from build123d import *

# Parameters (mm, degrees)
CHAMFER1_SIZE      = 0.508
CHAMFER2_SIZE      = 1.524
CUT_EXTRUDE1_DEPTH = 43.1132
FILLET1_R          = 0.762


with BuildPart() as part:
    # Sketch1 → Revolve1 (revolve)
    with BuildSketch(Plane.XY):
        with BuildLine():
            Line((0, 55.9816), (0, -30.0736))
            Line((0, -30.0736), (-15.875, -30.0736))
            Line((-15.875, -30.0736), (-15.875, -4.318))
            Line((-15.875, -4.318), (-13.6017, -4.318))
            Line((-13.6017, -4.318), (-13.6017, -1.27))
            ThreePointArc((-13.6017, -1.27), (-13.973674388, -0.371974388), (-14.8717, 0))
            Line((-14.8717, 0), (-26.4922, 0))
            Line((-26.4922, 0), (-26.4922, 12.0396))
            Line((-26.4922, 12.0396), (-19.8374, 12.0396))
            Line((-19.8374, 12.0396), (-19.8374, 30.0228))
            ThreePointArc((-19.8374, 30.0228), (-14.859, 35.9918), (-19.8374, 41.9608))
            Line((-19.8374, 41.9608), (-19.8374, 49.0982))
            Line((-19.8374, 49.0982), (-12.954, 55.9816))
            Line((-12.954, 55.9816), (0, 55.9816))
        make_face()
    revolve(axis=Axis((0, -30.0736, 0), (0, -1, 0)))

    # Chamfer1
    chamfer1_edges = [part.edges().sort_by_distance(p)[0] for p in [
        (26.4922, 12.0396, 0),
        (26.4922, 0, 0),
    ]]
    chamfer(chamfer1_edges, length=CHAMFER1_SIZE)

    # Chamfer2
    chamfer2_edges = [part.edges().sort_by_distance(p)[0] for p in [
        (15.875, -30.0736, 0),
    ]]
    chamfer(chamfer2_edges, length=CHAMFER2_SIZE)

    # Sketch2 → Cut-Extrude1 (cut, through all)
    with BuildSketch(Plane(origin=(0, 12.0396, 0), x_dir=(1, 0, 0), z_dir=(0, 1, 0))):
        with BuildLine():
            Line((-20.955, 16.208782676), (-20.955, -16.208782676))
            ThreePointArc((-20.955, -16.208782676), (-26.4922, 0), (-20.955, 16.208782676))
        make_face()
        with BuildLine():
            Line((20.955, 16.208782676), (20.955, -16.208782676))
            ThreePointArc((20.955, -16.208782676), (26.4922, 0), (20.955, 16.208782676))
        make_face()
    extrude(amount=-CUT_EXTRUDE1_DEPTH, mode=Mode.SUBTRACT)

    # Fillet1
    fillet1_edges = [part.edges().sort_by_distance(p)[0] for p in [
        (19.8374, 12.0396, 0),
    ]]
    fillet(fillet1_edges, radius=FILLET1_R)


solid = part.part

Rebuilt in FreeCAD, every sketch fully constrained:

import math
import FreeCAD as App
import Part
import Sketcher
from FreeCAD import Vector
Q = App.Units.Quantity


def edges_at(feature, points):
    """Names of the edges that pass closest to the given points."""
    edges = feature.Shape.Edges
    near = lambda p: min(range(len(edges)), key=lambda i: edges[i].distToShape(Part.Vertex(*p))[0])
    return sorted({f"Edge{near(p) + 1}" for p in points})

doc = App.newDocument("Part")
params = doc.addObject("Spreadsheet::Sheet", "Params")
for row, (alias, value) in enumerate([
    ("sketch1_radius", "0.05 in"),
    ("sketch1_width", "0.51 in"),
    ("sketch1_height", "0.12 in"),
    ("sketch1_width2", "0.262 in"),
    ("sketch1_width3", "0.625 in"),
    ("revolution_angle", "360 deg"),
    ("chamfer_size", "0.02 in"),
    ("chamfer2_size", "0.06 in"),
    ("sketch2_radius", "1.043 in"),
    ("fillet_radius", "0.03 in"),
], start=1):
    params.set(f"A{row}", alias)
    params.set(f"B{row}", "=" + value)
    params.setAlias(f"B{row}", alias)

body = doc.addObject("PartDesign::Body", "Body")

# Sketch on XY plane
sketch1 = body.newObject("Sketcher::SketchObject", "Sketch")
sketch1.AttachmentSupport = (doc.getObject("XY_Plane"), [""])
sketch1.MapMode = "FlatFace"
sketch1.addGeometry([
    Part.LineSegment(Vector(0, -30.1, 0), Vector(0, 56, 0)),  # 0
    Part.LineSegment(Vector(0, 56, 0), Vector(-13, 56, 0)),  # 1
    Part.LineSegment(Vector(-13, 56, 0), Vector(-19.8, 49.1, 0)),  # 2
    Part.LineSegment(Vector(-19.8, 49.1, 0), Vector(-19.8, 42, 0)),  # 3
    Part.ArcOfCircle(Part.Circle(Vector(-20.9, 36, 0), Vector(0, 0, 1), 6.1), math.radians(-80), math.radians(80)),  # 4
    Part.LineSegment(Vector(-19.8, 30, 0), Vector(-19.8, 12, 0)),  # 5
    Part.LineSegment(Vector(-19.8, 12, 0), Vector(-26.5, 12, 0)),  # 6
    Part.LineSegment(Vector(-26.5, 12, 0), Vector(-26.5, 0, 0)),  # 7
    Part.LineSegment(Vector(-26.5, 0, 0), Vector(-14.9, 0, 0)),  # 8
    Part.ArcOfCircle(Part.Circle(Vector(-14.9, -1.3, 0), Vector(0, 0, 1), 1.3), math.radians(0), math.radians(90)),  # 9
    Part.LineSegment(Vector(-13.6, -1.3, 0), Vector(-13.6, -4.3, 0)),  # 10
    Part.LineSegment(Vector(-13.6, -4.3, 0), Vector(-15.9, -4.3, 0)),  # 11
    Part.LineSegment(Vector(-15.9, -4.3, 0), Vector(-15.9, -30.1, 0)),  # 12
    Part.LineSegment(Vector(-15.9, -30.1, 0), Vector(0, -30.1, 0)),  # 13
], False)
sketch1.addConstraint([
    Sketcher.Constraint("Coincident", 0, 2, 1, 1),
    Sketcher.Constraint("Coincident", 1, 2, 2, 1),
    Sketcher.Constraint("Coincident", 2, 2, 3, 1),
    Sketcher.Constraint("Coincident", 3, 2, 4, 2),
    Sketcher.Constraint("Coincident", 4, 1, 5, 1),
    Sketcher.Constraint("Coincident", 5, 2, 6, 1),
    Sketcher.Constraint("Coincident", 6, 2, 7, 1),
    Sketcher.Constraint("Coincident", 7, 2, 8, 1),
    Sketcher.Constraint("Tangent", 8, 2, 9, 2),
    Sketcher.Constraint("Tangent", 9, 1, 10, 1),
    Sketcher.Constraint("Coincident", 10, 2, 11, 1),
    Sketcher.Constraint("Coincident", 11, 2, 12, 1),
    Sketcher.Constraint("Coincident", 12, 2, 13, 1),
    Sketcher.Constraint("Coincident", 13, 2, 0, 1),
    Sketcher.Constraint("Vertical", 0),
    Sketcher.Constraint("Horizontal", 1),
    Sketcher.Constraint("Vertical", 3),
    Sketcher.Constraint("Vertical", 5),
    Sketcher.Constraint("Horizontal", 6),
    Sketcher.Constraint("Vertical", 7),
    Sketcher.Constraint("Horizontal", 8),
    Sketcher.Constraint("Vertical", 10),
    Sketcher.Constraint("Horizontal", 11),
    Sketcher.Constraint("Vertical", 12),
    Sketcher.Constraint("Horizontal", 13),
    Sketcher.Constraint("PointOnObject", 0, 2, -2),
    Sketcher.Constraint("PointOnObject", 7, 2, -1),
    Sketcher.Constraint("Vertical", 3, 2, 4, 1),
    Sketcher.Constraint("Radius", 9, Q("0.05 in")),
    Sketcher.Constraint("Angle", 2, Q("-135 deg")),
    Sketcher.Constraint("DistanceX", 1, 2, 1, 1, Q("0.51 in")),
    Sketcher.Constraint("DistanceY", 10, 2, 10, 1, Q("0.12 in")),
    Sketcher.Constraint("DistanceX", 6, 2, 6, 1, Q("0.262 in")),
    Sketcher.Constraint("DistanceX", 13, 1, 13, 2, Q("0.625 in")),
    Sketcher.Constraint("DistanceY", 0, 1, 0, 2, Q("3.388 in")),
    Sketcher.Constraint("DistanceY", 3, 2, 3, 1, Q("0.281 in")),
    Sketcher.Constraint("DistanceY", 5, 2, 5, 1, Q("0.708 in")),
    Sketcher.Constraint("DistanceY", 7, 2, 7, 1, Q("0.474 in")),
    Sketcher.Constraint("DistanceY", 12, 2, 12, 1, Q("1.014 in")),
    Sketcher.Constraint("DistanceY", 4, 1, 3, 2, Q("0.47 in")),
    Sketcher.Constraint("DistanceX", 8, 1, 8, 2, Q("0.4575 in")),
    Sketcher.Constraint("Radius", 4, Q("6.067555 mm")),
])
sketch1.setExpression("Constraints[28]", "Params.sketch1_radius")
sketch1.setExpression("Constraints[30]", "Params.sketch1_width")
sketch1.setExpression("Constraints[31]", "Params.sketch1_height")
sketch1.setExpression("Constraints[32]", "Params.sketch1_width2")
sketch1.setExpression("Constraints[33]", "Params.sketch1_width3")
revolution = body.newObject("PartDesign::Revolution", "Revolution")
revolution.Profile = sketch1
revolution.ReferenceAxis = (sketch1, ["V_Axis"])
revolution.setExpression("Angle", "Params.revolution_angle")
doc.recompute()

chamfer = body.newObject("PartDesign::Chamfer", "Chamfer")
chamfer.Base = (revolution, edges_at(revolution, [(26.492, 12.04, 0), (26.492, 0, 0)]))
chamfer.setExpression("Size", "Params.chamfer_size")
doc.recompute()

chamfer2 = body.newObject("PartDesign::Chamfer", "Chamfer001")
chamfer2.Base = (chamfer, edges_at(chamfer, [(15.875, -30.074, 0)]))
chamfer2.setExpression("Size", "Params.chamfer2_size")

# Sketch on XZ plane
sketch2 = body.newObject("Sketcher::SketchObject", "Sketch001")
sketch2.AttachmentSupport = (doc.getObject("XZ_Plane"), [""])
sketch2.MapMode = "FlatFace"
sketch2.AttachmentOffset = App.Placement(Vector(0, 0, -0.474 * 25.4), App.Rotation())
sketch2.addGeometry([
    Part.LineSegment(Vector(-21, 16, 0), Vector(-21, -16, 0)),
    Part.ArcOfCircle(Part.Circle(Vector(0, 0, 0), Vector(0, 0, 1), 26), math.radians(142), math.radians(218)),
    Part.LineSegment(Vector(21, -16, 0), Vector(21, 16, 0)),
    Part.ArcOfCircle(Part.Circle(Vector(0, 0, 0), Vector(0, 0, 1), 26), math.radians(-38), math.radians(38)),
], False)
sketch2.addConstraint([
    Sketcher.Constraint("Coincident", 0, 1, 1, 1),
    Sketcher.Constraint("Coincident", 1, 2, 0, 2),
    Sketcher.Constraint("Coincident", 2, 1, 3, 1),
    Sketcher.Constraint("Coincident", 3, 2, 2, 2),
    Sketcher.Constraint("Vertical", 0),
    Sketcher.Constraint("Vertical", 2),
    Sketcher.Constraint("Coincident", 1, 3, -1, 1),
    Sketcher.Constraint("Coincident", 3, 3, -1, 1),
    Sketcher.Constraint("Equal", 1, 3),
    Sketcher.Constraint("Horizontal", 1, 2, 2, 1),
    Sketcher.Constraint("Radius", 1, Q("1.043 in")),
    Sketcher.Constraint("DistanceX", 1, 2, 2, 1, Q("1.65 in")),
])
sketch2.setExpression("Constraints[10]", "Params.sketch2_radius")
pocket1 = body.newObject("PartDesign::Pocket", "Pocket")
pocket1.Profile = sketch2
pocket1.Type = "ThroughAll"
pocket1.Reversed = True
doc.recompute()

fillet = body.newObject("PartDesign::Fillet", "Fillet")
fillet.Base = (pocket1, edges_at(pocket1, [(19.837, 12.04, 0)]))
fillet.setExpression("Radius", "Params.fillet_radius")

doc.recompute()
